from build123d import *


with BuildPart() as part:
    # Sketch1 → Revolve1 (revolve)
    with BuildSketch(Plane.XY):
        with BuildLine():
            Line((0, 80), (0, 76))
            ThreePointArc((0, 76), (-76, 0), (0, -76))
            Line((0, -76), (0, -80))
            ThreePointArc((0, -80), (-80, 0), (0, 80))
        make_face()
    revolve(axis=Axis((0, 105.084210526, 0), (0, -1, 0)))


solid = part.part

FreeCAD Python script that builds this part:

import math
import FreeCAD as App
import Part
import Sketcher
Q = App.Units.Quantity

doc = App.newDocument("Part")
body = doc.addObject("PartDesign::Body", "Body")

# Sketch on XY plane
sketch1 = doc.addObject("Sketcher::SketchObject", "Sketch")
body.addObject(sketch1)
sketch1.AttachmentSupport = (doc.XY_Plane, [""])
sketch1.MapMode = "FlatFace"
sketch1.addGeometry([
    Part.LineSegment(App.Vector(0, 76, 0), App.Vector(0, 80, 0)),
    Part.ArcOfCircle(Part.Circle(App.Vector(0, 0, 0), App.Vector(0, 0, 1), 80), math.radians(90), math.radians(270)),
    Part.LineSegment(App.Vector(0, -80, 0), App.Vector(0, -76, 0)),
    Part.ArcOfCircle(Part.Circle(App.Vector(0, 0, 0), App.Vector(0, 0, 1), 76), math.radians(90), math.radians(270)),
], False)
sketch1.addConstraint([
    Sketcher.Constraint("Coincident", 0, 2, 1, 1),
    Sketcher.Constraint("Coincident", 1, 2, 2, 1),
    Sketcher.Constraint("Coincident", 2, 2, 3, 2),
    Sketcher.Constraint("Coincident", 3, 1, 0, 1),
    Sketcher.Constraint("Vertical", 0),
    Sketcher.Constraint("Vertical", 2),
    Sketcher.Constraint("Coincident", 1, 3, -1, 1),
    Sketcher.Constraint("Coincident", 3, 3, -1, 1),
    Sketcher.Constraint("PointOnObject", 0, 2, -2),
    Sketcher.Constraint("PointOnObject", 1, 2, -2),
    Sketcher.Constraint("Radius", 1, Q("80 mm")),
    Sketcher.Constraint("Radius", 3, Q("76 mm")),
])
revolution = doc.addObject("PartDesign::Revolution", "Revolution")
body.addObject(revolution)
revolution.Profile = sketch1
revolution.ReferenceAxis = (sketch1, ["V_Axis"])
revolution.Angle = 360

doc.recompute()
